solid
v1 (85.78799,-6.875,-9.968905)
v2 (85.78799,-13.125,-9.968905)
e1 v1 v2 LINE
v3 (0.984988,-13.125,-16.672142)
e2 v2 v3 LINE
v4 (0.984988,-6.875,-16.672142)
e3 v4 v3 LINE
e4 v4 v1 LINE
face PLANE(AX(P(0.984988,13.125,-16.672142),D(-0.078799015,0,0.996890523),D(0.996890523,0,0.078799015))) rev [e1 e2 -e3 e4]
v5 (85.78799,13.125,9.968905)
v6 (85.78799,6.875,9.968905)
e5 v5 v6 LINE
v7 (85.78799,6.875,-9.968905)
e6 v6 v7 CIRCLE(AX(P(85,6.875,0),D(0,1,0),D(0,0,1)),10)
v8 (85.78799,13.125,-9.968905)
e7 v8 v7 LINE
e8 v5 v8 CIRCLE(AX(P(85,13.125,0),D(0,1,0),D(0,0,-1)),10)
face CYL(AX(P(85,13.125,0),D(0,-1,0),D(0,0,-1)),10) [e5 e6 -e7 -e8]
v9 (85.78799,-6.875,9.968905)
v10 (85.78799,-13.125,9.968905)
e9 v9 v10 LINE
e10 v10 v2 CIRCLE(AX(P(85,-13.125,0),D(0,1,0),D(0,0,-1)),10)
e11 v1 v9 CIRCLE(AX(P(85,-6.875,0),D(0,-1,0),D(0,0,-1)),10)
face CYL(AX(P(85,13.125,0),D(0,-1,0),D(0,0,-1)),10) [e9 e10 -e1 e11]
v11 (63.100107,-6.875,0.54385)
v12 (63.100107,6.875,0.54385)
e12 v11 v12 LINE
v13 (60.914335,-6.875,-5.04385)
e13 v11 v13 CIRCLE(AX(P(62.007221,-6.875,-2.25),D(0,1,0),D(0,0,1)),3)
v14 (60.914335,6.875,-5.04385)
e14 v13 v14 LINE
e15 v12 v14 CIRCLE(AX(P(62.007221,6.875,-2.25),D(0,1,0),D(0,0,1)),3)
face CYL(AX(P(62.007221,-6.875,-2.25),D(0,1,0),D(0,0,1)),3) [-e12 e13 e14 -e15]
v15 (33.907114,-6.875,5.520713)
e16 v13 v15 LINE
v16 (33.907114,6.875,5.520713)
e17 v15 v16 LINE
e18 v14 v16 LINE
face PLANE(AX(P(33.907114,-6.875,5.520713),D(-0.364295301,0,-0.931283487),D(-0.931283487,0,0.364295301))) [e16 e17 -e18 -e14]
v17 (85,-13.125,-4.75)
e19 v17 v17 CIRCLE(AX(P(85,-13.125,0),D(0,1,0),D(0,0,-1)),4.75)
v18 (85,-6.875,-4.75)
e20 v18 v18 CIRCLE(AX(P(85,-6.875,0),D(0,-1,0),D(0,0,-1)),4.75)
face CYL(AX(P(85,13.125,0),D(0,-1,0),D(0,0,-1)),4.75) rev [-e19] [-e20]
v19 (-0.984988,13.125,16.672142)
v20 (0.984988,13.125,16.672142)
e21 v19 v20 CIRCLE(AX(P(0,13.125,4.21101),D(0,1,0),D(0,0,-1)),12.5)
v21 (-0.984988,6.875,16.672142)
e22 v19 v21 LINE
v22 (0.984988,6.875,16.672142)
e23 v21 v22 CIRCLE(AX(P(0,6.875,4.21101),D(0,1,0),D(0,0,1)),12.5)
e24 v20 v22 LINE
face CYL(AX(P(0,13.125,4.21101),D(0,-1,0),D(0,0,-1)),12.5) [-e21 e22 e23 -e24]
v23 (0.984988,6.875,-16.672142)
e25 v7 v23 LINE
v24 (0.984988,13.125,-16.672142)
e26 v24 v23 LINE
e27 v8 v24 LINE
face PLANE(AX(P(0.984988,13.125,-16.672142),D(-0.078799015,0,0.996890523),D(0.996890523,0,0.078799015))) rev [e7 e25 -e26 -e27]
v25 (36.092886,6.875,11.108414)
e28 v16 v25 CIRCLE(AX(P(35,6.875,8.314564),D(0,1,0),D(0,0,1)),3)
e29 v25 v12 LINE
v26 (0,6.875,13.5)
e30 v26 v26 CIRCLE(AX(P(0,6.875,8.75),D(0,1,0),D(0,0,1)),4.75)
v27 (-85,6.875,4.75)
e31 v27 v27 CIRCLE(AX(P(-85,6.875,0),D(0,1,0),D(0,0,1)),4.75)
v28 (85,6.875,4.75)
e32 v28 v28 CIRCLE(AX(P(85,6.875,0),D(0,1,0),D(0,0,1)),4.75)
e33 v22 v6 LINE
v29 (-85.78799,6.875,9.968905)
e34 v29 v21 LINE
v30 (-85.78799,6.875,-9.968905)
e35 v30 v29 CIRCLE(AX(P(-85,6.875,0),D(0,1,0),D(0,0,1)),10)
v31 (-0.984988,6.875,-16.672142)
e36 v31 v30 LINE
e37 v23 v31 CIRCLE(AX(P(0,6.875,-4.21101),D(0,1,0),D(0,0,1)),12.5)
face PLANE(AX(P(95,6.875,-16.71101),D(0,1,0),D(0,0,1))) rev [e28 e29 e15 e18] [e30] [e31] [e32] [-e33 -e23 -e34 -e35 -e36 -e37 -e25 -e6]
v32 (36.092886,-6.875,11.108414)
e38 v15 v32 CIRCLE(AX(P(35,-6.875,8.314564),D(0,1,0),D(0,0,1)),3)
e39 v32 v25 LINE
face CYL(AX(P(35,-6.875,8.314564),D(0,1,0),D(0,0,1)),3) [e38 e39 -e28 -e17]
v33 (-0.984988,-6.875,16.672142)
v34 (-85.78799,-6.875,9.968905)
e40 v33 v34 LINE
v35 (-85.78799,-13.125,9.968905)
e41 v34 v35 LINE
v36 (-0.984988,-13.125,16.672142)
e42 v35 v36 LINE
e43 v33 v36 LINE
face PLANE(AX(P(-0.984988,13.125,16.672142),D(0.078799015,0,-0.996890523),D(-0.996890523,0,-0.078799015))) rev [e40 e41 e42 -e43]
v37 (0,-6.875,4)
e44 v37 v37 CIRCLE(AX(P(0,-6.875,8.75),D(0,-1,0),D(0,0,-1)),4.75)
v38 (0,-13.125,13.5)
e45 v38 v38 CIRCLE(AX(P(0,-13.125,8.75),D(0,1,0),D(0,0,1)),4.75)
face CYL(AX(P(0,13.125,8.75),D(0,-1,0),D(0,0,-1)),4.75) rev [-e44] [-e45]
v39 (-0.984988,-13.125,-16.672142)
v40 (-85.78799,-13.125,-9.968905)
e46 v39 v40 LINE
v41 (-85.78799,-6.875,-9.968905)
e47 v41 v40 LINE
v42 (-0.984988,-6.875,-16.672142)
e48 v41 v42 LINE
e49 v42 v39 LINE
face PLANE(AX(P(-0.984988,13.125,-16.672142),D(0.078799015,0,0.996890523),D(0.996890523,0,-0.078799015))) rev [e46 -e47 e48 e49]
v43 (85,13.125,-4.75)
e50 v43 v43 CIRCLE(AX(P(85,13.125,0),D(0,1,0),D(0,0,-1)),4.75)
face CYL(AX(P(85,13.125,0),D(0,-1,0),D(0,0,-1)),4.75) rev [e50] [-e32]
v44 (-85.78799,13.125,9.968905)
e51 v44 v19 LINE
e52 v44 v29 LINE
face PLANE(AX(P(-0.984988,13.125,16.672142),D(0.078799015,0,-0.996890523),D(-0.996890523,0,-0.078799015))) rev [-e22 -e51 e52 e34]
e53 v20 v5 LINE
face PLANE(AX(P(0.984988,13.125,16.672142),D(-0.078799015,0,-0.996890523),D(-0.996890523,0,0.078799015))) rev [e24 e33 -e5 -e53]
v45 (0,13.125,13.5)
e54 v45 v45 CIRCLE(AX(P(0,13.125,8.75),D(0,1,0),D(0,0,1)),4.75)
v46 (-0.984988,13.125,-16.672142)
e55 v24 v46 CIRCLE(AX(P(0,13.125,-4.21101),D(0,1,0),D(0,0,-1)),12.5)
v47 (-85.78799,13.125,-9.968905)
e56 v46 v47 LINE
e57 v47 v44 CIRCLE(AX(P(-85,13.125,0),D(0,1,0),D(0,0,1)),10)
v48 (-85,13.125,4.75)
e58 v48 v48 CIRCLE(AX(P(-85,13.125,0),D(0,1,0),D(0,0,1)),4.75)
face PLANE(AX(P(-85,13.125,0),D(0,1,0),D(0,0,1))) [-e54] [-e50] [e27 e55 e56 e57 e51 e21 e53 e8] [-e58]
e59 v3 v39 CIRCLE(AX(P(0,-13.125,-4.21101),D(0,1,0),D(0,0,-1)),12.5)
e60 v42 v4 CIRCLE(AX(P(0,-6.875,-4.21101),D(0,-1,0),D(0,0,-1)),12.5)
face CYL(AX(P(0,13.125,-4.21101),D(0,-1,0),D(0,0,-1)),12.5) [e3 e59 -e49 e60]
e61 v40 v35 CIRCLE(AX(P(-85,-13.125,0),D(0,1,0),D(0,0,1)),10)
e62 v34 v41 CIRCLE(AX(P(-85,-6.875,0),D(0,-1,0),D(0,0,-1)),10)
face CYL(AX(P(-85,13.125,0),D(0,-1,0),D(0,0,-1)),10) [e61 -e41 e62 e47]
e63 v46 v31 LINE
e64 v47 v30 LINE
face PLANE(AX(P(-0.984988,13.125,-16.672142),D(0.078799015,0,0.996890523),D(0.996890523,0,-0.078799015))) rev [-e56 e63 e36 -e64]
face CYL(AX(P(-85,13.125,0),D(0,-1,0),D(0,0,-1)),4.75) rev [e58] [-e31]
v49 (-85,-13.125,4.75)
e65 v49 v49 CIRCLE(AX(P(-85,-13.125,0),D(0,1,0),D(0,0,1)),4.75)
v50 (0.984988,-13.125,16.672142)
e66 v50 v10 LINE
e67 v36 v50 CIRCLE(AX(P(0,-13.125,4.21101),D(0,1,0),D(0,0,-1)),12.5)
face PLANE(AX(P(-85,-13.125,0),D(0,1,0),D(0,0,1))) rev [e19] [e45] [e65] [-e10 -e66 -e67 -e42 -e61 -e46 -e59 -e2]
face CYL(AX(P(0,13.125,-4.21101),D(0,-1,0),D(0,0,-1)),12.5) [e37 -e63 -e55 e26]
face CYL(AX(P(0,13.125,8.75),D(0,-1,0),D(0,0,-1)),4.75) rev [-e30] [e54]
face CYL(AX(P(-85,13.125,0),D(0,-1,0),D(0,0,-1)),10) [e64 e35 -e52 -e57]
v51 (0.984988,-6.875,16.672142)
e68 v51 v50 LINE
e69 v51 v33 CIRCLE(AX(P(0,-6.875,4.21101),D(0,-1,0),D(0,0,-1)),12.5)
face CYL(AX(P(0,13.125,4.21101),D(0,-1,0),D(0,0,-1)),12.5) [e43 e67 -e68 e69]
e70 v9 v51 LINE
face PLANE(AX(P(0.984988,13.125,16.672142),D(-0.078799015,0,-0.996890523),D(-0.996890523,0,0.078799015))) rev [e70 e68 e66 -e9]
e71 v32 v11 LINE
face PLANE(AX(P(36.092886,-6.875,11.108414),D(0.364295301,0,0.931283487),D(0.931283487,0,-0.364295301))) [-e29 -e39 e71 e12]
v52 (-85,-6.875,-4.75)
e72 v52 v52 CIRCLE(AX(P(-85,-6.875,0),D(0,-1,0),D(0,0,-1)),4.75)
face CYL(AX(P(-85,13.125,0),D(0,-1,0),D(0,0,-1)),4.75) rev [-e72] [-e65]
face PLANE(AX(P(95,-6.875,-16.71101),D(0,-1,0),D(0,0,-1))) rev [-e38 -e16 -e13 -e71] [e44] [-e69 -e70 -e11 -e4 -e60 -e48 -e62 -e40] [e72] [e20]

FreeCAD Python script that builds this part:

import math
import FreeCAD as App
import Part
import Sketcher


def add_polygon(sketch, points):
    """Adds a closed chain of lines whose ends are joined by coincident constraints."""
    first, n = sketch.GeometryCount, len(points)
    for a, b in zip(points, points[1:] + points[:1]):
        sketch.addGeometry(Part.LineSegment(App.Vector(*a, 0), App.Vector(*b, 0)), False)
    for i in range(n):
        sketch.addConstraint(Sketcher.Constraint("Coincident", first + i, 2, first + (i + 1) % n, 1))

doc = App.newDocument("Part")
params = doc.addObject("Spreadsheet::Sheet", "Params")
for row, (alias, value) in enumerate([
    ("sketch1_radius", "10 mm"),
    ("sketch1_diameter", "9.5 mm"),
    ("sketch1_radius2", "12.5 mm"),
    ("pad1_length", "26.25 mm"),
    ("sketch2_width", "190 mm"),
    ("sketch2_height", "13.75 mm"),
    ("sketch3_radius", "3 mm"),
    ("sketch3_length", "29 mm"),
    ("pad2_length", "6.875 mm"),
    ("pad2_length2", "6.875 mm"),
], start=1):
    params.set(f"A{row}", alias)
    params.set(f"B{row}", "=" + value)
    params.setAlias(f"B{row}", alias)

body = doc.addObject("PartDesign::Body", "Body")
body.AllowCompound = True

sketch1 = body.newObject("Sketcher::SketchObject", "Sketch")
sketch1.AttachmentSupport = (doc.getObject("XZ_Plane"), [""])
sketch1.MapMode = "FlatFace"
sketch1.addGeometry(Part.LineSegment(App.Vector(-1, -16.7, 0), App.Vector(-85.8, -10, 0)), False)
sketch1.addGeometry(Part.ArcOfCircle(Part.Circle(App.Vector(-85, 0, 0), App.Vector(0, 0, 1), 10), math.radians(95), math.radians(265)), False)
sketch1.addGeometry(Part.LineSegment(App.Vector(-85.8, 10, 0), App.Vector(-1, 16.7, 0)), False)
sketch1.addGeometry(Part.ArcOfCircle(Part.Circle(App.Vector(0, 4.2, 0), App.Vector(0, 0, 1), 12.5), math.radians(85.48), math.radians(94.52)), False)
sketch1.addGeometry(Part.LineSegment(App.Vector(1, 16.7, 0), App.Vector(85.8, 10, 0)), False)
sketch1.addGeometry(Part.ArcOfCircle(Part.Circle(App.Vector(85, 0, 0), App.Vector(0, 0, 1), 10), math.radians(-85), math.radians(85)), False)
sketch1.addGeometry(Part.LineSegment(App.Vector(85.8, -10, 0), App.Vector(1, -16.7, 0)), False)
sketch1.addGeometry(Part.ArcOfCircle(Part.Circle(App.Vector(0, -4.2, 0), App.Vector(0, 0, 1), 12.5), math.radians(-94.52), math.radians(-85.48)), False)
sketch1.addGeometry(Part.Circle(App.Vector(0, 8.8, 0), App.Vector(0, 0, 1), 4.8), False)
sketch1.addGeometry(Part.Circle(App.Vector(-85, 0, 0), App.Vector(0, 0, 1), 4.8), False)
sketch1.addGeometry(Part.Circle(App.Vector(85, 0, 0), App.Vector(0, 0, 1), 4.8), False)
sketch1.addConstraint(Sketcher.Constraint("Tangent", 0, 2, 1, 2))
sketch1.addConstraint(Sketcher.Constraint("Tangent", 1, 1, 2, 1))
sketch1.addConstraint(Sketcher.Constraint("Tangent", 2, 2, 3, 2))
sketch1.addConstraint(Sketcher.Constraint("Tangent", 3, 1, 4, 1))
sketch1.addConstraint(Sketcher.Constraint("Tangent", 4, 2, 5, 2))
sketch1.addConstraint(Sketcher.Constraint("Tangent", 5, 1, 6, 1))
sketch1.addConstraint(Sketcher.Constraint("Tangent", 6, 2, 7, 2))
sketch1.addConstraint(Sketcher.Constraint("Tangent", 7, 1, 0, 1))
sketch1.addConstraint(Sketcher.Constraint("Coincident", 9, 3, 1, 3))
sketch1.addConstraint(Sketcher.Constraint("Coincident", 10, 3, 5, 3))
sketch1.addConstraint(Sketcher.Constraint("Equal", 1, 5))
sketch1.addConstraint(Sketcher.Constraint("Equal", 3, 7))
sketch1.addConstraint(Sketcher.Constraint("Equal", 8, 9))
sketch1.addConstraint(Sketcher.Constraint("Equal", 9, 10))
sketch1.addConstraint(Sketcher.Constraint("Symmetric", 1, 3, 5, 3, -1, 1))
sketch1.addConstraint(Sketcher.Constraint("Symmetric", 3, 3, 7, 3, -1, 1))
sketch1.addConstraint(Sketcher.Constraint("Symmetric", 2, 2, 3, 1, -2))
sketch1.addConstraint(Sketcher.Constraint("PointOnObject", 8, 3, -2))
sketch1.addConstraint(Sketcher.Constraint("Radius", 1, 10.0))
sketch1.addConstraint(Sketcher.Constraint("Diameter", 8, 9.5))
sketch1.addConstraint(Sketcher.Constraint("Radius", 3, 12.5))
sketch1.addConstraint(Sketcher.Constraint("DistanceX", 1, 3, -1, 1, 85.0))
sketch1.addConstraint(Sketcher.Constraint("DistanceY", -1, 1, 8, 3, 8.75))
sketch1.addConstraint(Sketcher.Constraint("DistanceY", -1, 1, 3, 3, 4.21101))
sketch1.setExpression("Constraints[18]", "Params.sketch1_radius")
sketch1.setExpression("Constraints[19]", "Params.sketch1_diameter")
sketch1.setExpression("Constraints[20]", "Params.sketch1_radius2")
pad1 = body.newObject("PartDesign::Pad", "Pad")
pad1.Profile = sketch1
pad1.setExpression("Length", "Params.pad1_length")
pad1.Midplane = True

sketch2 = body.newObject("Sketcher::SketchObject", "Sketch001")
sketch2.AttachmentSupport = (doc.getObject("XY_Plane"), [""])
sketch2.MapMode = "FlatFace"
sketch2.AttachmentOffset = App.Placement(App.Vector(0, 0, 17), App.Rotation())
add_polygon(sketch2, [(-95, 7), (-95, -7), (95, -7), (95, 7)])
sketch2.addConstraint(Sketcher.Constraint("Vertical", 0))
sketch2.addConstraint(Sketcher.Constraint("Horizontal", 1))
sketch2.addConstraint(Sketcher.Constraint("Vertical", 2))
sketch2.addConstraint(Sketcher.Constraint("Horizontal", 3))
sketch2.addConstraint(Sketcher.Constraint("Symmetric", 0, 2, 2, 2, -1, 1))
sketch2.addConstraint(Sketcher.Constraint("DistanceX", 1, 1, 1, 2, 190.0))
sketch2.addConstraint(Sketcher.Constraint("DistanceY", 0, 2, 0, 1, 13.75))
sketch2.setExpression("Constraints[9]", "Params.sketch2_width")
sketch2.setExpression("Constraints[10]", "Params.sketch2_height")
pocket1 = body.newObject("PartDesign::Pocket", "Pocket")
pocket1.Profile = sketch2
pocket1.Type = "ThroughAll"

sketch3 = body.newObject("Sketcher::SketchObject", "Sketch002")
sketch3.AttachmentSupport = (doc.getObject("XZ_Plane"), [""])
sketch3.MapMode = "FlatFace"
sketch3.addGeometry(Part.LineSegment(App.Vector(60.9, -5, 0), App.Vector(33.9, 5.5, 0)), False)
sketch3.addGeometry(Part.ArcOfCircle(Part.Circle(App.Vector(35, 8.3, 0), App.Vector(0, 0, 1), 3), math.radians(69), math.radians(249)), False)
sketch3.addGeometry(Part.LineSegment(App.Vector(36.1, 11.1, 0), App.Vector(63.1, 0.5, 0)), False)
sketch3.addGeometry(Part.ArcOfCircle(Part.Circle(App.Vector(62, -2.2, 0), App.Vector(0, 0, 1), 3), math.radians(-111), math.radians(69)), False)
sketch3.addConstraint(Sketcher.Constraint("Tangent", 0, 2, 1, 2))
sketch3.addConstraint(Sketcher.Constraint("Tangent", 1, 1, 2, 1))
sketch3.addConstraint(Sketcher.Constraint("Tangent", 2, 2, 3, 2))
sketch3.addConstraint(Sketcher.Constraint("Tangent", 3, 1, 0, 1))
sketch3.addConstraint(Sketcher.Constraint("Equal", 1, 3))
sketch3.addConstraint(Sketcher.Constraint("Radius", 1, 3.0))
sketch3.addConstraint(Sketcher.Constraint("Distance", 0, 29.0))
sketch3.addConstraint(Sketcher.Constraint("DistanceX", -1, 1, 1, 3, 35.0))
sketch3.addConstraint(Sketcher.Constraint("DistanceY", 3, 3, -1, 1, 2.25))
sketch3.addConstraint(Sketcher.Constraint("DistanceY", 0, 2, 1, 1, 5.587701))
sketch3.setExpression("Constraints[5]", "Params.sketch3_radius")
sketch3.setExpression("Constraints[6]", "Params.sketch3_length")
pad2 = body.newObject("PartDesign::Pad", "Pad001")
pad2.Profile = sketch3
pad2.Type = "TwoLengths"
pad2.setExpression("Length", "Params.pad2_length")
pad2.setExpression("Length2", "Params.pad2_length2")
pad2.Reversed = True

doc.recompute()
